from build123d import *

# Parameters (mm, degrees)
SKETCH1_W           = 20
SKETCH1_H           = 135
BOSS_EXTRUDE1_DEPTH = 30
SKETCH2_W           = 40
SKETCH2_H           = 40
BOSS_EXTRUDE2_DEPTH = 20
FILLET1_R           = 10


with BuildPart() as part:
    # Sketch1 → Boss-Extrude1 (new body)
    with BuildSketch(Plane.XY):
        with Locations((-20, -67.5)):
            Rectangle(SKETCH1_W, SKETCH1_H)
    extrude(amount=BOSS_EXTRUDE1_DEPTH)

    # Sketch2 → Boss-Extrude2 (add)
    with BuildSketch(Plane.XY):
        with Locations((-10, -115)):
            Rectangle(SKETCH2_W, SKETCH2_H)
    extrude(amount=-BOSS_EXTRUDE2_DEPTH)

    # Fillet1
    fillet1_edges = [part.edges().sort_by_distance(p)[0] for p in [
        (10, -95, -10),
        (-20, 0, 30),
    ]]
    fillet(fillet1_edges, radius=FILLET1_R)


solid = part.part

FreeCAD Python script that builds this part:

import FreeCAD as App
import Part
import Sketcher

V = App.Vector


def edges_at(feature, points):
    """Names of the edges that pass closest to the given points."""
    edges = feature.Shape.Edges
    near = lambda p: min(range(len(edges)), key=lambda i: edges[i].distToShape(Part.Vertex(*p))[0])
    return sorted({f"Edge{near(p) + 1}" for p in points})


def add_polygon(sketch, points):
    """Adds a closed chain of lines whose ends are joined by coincident constraints."""
    first, n = sketch.GeometryCount, len(points)
    for a, b in zip(points, points[1:] + points[:1]):
        sketch.addGeometry(Part.LineSegment(App.Vector(*a, 0), App.Vector(*b, 0)), False)
    for i in range(n):
        sketch.addConstraint(Sketcher.Constraint("Coincident", first + i, 2, first + (i + 1) % n, 1))

doc = App.newDocument("Part")
body = doc.addObject("PartDesign::Body", "Body")

# Sketch on XY plane
sketch1 = doc.addObject("Sketcher::SketchObject", "Sketch")
body.addObject(sketch1)
sketch1.AttachmentSupport = (doc.XY_Plane, [""])
sketch1.MapMode = "FlatFace"
add_polygon(sketch1, [(-30, 0), (-30, -135), (-10, -135), (-10, 0)])  # lines 0-3
sketch1.addConstraint([
    Sketcher.Constraint("Vertical", 0),
    Sketcher.Constraint("Horizontal", 1),
    Sketcher.Constraint("Vertical", 2),
    Sketcher.Constraint("Horizontal", 3),
    Sketcher.Constraint("PointOnObject", 2, 2, -1),
    Sketcher.Constraint("DistanceX", 1, 1, 1, 2, 20.0),
    Sketcher.Constraint("DistanceY", 0, 2, 0, 1, 135.0),
    Sketcher.Constraint("DistanceX", 0, 2, -1, 1, 30.0),
])
pad1 = doc.addObject("PartDesign::Pad", "Pad")
body.addObject(pad1)
pad1.Profile = sketch1
pad1.Length = 30

# Sketch on XY plane
sketch2 = doc.addObject("Sketcher::SketchObject", "Sketch001")
body.addObject(sketch2)
sketch2.AttachmentSupport = (doc.XY_Plane, [""])
sketch2.MapMode = "FlatFace"
add_polygon(sketch2, [(-30, -95), (-30, -135), (10, -135), (10, -95)])  # lines 0-3
sketch2.addConstraint([
    Sketcher.Constraint("Vertical", 0),
    Sketcher.Constraint("Horizontal", 1),
    Sketcher.Constraint("Vertical", 2),
    Sketcher.Constraint("Horizontal", 3),
    Sketcher.Constraint("Equal", 3, 0),
    Sketcher.Constraint("DistanceX", 1, 1, 1, 2, 40.0),
    Sketcher.Constraint("DistanceX", 0, 2, -1, 1, 30.0),
    Sketcher.Constraint("DistanceY", 0, 2, -1, 1, 135.0),
])
pad2 = doc.addObject("PartDesign::Pad", "Pad001")
body.addObject(pad2)
pad2.Profile = sketch2
pad2.Length = 20
pad2.Reversed = True
doc.recompute()

fillet = doc.addObject("PartDesign::Fillet", "Fillet")
body.addObject(fillet)
fillet.Base = (pad2, edges_at(pad2, [(10, -95, -10), (-20, 0, 30)]))
fillet.Radius = 10

doc.recompute()
